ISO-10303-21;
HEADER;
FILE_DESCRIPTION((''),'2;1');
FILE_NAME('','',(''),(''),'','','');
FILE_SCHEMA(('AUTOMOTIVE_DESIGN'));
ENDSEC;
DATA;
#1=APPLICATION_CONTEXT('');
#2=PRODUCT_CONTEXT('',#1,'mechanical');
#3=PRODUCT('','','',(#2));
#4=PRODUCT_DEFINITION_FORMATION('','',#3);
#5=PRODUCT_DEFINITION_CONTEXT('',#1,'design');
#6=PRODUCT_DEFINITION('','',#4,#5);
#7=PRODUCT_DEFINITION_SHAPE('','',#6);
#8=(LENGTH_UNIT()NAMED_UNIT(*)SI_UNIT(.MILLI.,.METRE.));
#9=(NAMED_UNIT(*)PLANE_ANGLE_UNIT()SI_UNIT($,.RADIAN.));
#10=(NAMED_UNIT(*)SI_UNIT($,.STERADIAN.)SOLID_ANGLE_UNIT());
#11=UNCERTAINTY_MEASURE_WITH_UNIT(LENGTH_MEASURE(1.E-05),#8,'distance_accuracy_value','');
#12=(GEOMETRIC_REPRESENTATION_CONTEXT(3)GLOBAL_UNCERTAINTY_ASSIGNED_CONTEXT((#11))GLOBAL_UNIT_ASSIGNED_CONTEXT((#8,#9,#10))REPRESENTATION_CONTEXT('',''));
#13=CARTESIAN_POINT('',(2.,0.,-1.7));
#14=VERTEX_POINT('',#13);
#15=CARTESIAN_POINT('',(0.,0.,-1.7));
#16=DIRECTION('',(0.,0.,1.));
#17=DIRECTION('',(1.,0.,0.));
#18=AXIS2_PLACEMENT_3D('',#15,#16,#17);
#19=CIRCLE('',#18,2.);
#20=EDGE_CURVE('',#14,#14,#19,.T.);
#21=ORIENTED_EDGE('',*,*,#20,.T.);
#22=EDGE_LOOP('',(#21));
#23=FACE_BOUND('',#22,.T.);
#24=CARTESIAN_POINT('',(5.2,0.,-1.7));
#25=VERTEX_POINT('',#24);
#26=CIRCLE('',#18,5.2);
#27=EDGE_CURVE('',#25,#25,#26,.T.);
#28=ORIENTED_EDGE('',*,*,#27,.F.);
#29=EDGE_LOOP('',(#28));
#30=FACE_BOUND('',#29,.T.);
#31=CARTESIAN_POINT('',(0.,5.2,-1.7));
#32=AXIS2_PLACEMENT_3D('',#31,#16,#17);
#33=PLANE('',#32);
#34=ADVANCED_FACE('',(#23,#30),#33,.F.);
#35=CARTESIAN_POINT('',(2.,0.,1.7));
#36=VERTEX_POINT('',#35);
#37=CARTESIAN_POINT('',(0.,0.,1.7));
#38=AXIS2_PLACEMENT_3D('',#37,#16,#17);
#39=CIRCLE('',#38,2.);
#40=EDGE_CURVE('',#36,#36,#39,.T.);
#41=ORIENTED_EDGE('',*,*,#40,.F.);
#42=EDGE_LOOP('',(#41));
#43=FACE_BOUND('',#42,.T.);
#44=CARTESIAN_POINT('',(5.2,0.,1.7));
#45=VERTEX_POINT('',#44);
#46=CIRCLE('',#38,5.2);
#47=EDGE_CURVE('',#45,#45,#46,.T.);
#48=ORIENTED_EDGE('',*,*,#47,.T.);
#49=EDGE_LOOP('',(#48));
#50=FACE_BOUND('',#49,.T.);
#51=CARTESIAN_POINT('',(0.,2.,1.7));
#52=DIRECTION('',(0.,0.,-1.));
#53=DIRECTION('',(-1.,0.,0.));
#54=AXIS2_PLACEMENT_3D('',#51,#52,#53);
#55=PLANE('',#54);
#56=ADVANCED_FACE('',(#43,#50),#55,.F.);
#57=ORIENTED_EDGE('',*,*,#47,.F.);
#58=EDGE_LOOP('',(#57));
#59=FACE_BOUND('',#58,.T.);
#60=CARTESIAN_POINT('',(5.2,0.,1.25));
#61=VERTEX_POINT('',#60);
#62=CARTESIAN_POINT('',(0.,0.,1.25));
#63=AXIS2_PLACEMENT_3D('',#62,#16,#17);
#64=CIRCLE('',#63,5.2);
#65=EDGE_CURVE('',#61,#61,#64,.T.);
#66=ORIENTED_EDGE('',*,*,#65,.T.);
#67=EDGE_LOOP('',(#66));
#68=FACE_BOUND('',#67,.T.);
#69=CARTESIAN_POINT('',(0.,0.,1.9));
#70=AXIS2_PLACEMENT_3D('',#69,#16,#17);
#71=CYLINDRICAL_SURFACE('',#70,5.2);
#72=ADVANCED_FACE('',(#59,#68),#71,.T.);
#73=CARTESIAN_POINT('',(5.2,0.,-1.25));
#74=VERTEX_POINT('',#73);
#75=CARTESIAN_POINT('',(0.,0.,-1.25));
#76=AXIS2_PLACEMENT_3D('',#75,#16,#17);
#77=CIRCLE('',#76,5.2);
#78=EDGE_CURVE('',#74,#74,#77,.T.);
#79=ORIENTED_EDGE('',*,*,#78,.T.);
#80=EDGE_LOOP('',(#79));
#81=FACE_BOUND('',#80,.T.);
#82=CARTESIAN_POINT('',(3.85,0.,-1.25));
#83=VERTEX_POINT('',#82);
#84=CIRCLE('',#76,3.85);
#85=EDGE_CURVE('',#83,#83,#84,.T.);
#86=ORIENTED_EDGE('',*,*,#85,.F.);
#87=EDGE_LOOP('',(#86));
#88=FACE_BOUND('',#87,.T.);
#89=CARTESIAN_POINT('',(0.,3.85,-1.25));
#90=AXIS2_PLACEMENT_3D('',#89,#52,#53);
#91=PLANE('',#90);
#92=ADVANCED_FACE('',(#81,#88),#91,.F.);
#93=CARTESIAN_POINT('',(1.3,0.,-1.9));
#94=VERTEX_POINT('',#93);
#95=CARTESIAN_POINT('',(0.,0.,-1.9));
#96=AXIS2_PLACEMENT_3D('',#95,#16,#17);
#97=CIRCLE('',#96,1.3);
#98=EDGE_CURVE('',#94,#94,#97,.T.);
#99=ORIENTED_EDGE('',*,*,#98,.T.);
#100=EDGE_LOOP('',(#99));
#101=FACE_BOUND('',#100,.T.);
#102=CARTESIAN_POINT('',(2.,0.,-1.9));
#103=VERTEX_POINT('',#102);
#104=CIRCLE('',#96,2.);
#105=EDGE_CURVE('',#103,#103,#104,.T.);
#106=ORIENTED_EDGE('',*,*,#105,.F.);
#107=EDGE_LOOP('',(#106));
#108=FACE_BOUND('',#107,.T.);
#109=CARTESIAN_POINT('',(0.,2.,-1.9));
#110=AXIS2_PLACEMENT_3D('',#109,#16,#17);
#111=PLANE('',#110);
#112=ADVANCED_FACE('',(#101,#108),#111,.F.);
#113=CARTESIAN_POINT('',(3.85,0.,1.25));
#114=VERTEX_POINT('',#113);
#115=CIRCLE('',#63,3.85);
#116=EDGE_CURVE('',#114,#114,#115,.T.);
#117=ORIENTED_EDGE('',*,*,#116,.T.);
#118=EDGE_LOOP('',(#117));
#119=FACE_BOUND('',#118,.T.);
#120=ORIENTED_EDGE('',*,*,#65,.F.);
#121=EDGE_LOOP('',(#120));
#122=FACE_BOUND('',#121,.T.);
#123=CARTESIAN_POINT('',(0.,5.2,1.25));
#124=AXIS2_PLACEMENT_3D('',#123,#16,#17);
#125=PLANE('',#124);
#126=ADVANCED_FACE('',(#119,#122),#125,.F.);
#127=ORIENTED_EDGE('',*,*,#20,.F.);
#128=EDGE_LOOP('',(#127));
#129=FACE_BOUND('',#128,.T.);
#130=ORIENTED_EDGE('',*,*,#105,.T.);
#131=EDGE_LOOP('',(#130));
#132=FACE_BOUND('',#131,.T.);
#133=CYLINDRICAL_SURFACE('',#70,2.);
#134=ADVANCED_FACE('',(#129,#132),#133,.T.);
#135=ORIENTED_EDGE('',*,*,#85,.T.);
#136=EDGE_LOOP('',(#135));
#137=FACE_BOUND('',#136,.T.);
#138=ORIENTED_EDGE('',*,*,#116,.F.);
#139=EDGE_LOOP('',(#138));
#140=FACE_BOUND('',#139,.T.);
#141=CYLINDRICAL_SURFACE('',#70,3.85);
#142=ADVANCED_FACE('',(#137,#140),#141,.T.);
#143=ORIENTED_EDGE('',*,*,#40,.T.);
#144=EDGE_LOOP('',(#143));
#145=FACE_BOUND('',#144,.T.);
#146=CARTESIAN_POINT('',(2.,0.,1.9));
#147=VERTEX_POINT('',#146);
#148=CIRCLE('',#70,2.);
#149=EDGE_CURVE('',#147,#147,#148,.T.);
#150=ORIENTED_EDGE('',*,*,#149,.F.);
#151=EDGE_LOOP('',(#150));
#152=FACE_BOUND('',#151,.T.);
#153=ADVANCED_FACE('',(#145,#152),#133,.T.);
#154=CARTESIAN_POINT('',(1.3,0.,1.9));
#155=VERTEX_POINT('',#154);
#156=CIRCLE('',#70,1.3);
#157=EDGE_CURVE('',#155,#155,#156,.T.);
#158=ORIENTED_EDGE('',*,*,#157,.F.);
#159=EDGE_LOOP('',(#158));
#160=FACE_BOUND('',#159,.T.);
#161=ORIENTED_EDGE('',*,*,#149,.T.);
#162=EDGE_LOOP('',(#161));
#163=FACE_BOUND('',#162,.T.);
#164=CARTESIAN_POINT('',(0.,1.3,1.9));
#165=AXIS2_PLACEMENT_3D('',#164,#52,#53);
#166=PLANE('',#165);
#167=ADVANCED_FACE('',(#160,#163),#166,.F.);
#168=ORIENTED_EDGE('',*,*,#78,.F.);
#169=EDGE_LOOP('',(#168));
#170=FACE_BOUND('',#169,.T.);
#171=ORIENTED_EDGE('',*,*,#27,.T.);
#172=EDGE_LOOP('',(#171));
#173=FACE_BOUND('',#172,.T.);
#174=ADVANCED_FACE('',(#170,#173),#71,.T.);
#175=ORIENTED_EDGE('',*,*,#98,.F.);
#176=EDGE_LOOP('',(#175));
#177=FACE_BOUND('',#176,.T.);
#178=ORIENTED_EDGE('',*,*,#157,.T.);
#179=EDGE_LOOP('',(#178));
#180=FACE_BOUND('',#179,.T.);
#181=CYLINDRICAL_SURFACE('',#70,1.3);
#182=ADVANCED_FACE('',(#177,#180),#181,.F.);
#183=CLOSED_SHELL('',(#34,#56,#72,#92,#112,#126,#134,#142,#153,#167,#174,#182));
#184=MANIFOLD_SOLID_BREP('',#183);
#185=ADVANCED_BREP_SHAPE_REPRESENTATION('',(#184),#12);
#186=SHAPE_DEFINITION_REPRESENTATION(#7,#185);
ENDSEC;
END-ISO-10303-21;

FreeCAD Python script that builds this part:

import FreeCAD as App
import Part
import Sketcher
from FreeCAD import Vector
Q = App.Units.Quantity


def add_polygon(sketch, points):
    """Adds a closed chain of lines whose ends are joined by coincident constraints."""
    first, n = sketch.GeometryCount, len(points)
    for a, b in zip(points, points[1:] + points[:1]):
        sketch.addGeometry(Part.LineSegment(App.Vector(*a, 0), App.Vector(*b, 0)), False)
    for i in range(n):
        sketch.addConstraint(Sketcher.Constraint("Coincident", first + i, 2, first + (i + 1) % n, 1))

doc = App.newDocument("Part")
params = doc.addObject("Spreadsheet::Sheet", "Params")
for row, (alias, value) in enumerate([
    ("sketch1_width", "0.7 mm"),
    ("sketch1_width2", "3.2 mm"),
    ("sketch1_height", "3.8 mm"),
    ("sketch1_height2", "0.2 mm"),
    ("sketch1_height3", "2.5 mm"),
    ("revolution_angle", "360 deg"),
], start=1):
    params.set(f"A{row}", alias)
    params.set(f"B{row}", "=" + value)
    params.setAlias(f"B{row}", alias)

body = doc.addObject("PartDesign::Body", "Body")

# Sketch on YZ plane
sketch1 = body.newObject("Sketcher::SketchObject", "Sketch")
sketch1.AttachmentSupport = (doc.getObject("YZ_Plane"), [""])
sketch1.MapMode = "FlatFace"
add_polygon(sketch1, [(2, 1.9), (1.3, 1.9), (1.3, -1.9), (2, -1.9), (2, -1.7), (5.2, -1.7), (5.2, -1.25), (3.85, -1.25), (3.85, 1.25), (5.2, 1.25), (5.2, 1.7), (2, 1.7)])  # lines 0-11
sketch1.addConstraint([
    Sketcher.Constraint("Horizontal", 0),
    Sketcher.Constraint("Vertical", 1),
    Sketcher.Constraint("Horizontal", 2),
    Sketcher.Constraint("Vertical", 3),
    Sketcher.Constraint("Horizontal", 4),
    Sketcher.Constraint("Vertical", 5),
    Sketcher.Constraint("Horizontal", 6),
    Sketcher.Constraint("Vertical", 7),
    Sketcher.Constraint("Horizontal", 8),
    Sketcher.Constraint("Vertical", 9),
    Sketcher.Constraint("Horizontal", 10),
    Sketcher.Constraint("Vertical", 11),
    Sketcher.Constraint("Symmetric", 5, 2, 8, 2, -1),
    Sketcher.Constraint("Symmetric", 3, 2, 10, 2, -1),
    Sketcher.Constraint("Equal", 3, 11),
    Sketcher.Constraint("DistanceX", 0, 2, 0, 1, Q("0.7 mm")),
    Sketcher.Constraint("DistanceX", 4, 1, 4, 2, Q("3.2 mm")),
    Sketcher.Constraint("DistanceY", 1, 2, 1, 1, Q("3.8 mm")),
    Sketcher.Constraint("DistanceY", 3, 1, 3, 2, Q("0.2 mm")),
    Sketcher.Constraint("DistanceY", 7, 1, 7, 2, Q("2.5 mm")),
    Sketcher.Constraint("DistanceX", -1, 1, 2, 2, Q("2 mm")),
    Sketcher.Constraint("DistanceX", 6, 2, 6, 1, Q("1.35 mm")),
])
sketch1.setExpression("Constraints[27]", "Params.sketch1_width")
sketch1.setExpression("Constraints[28]", "Params.sketch1_width2")
sketch1.setExpression("Constraints[29]", "Params.sketch1_height")
sketch1.setExpression("Constraints[30]", "Params.sketch1_height2")
sketch1.setExpression("Constraints[31]", "Params.sketch1_height3")
revolution = body.newObject("PartDesign::Revolution", "Revolution")
revolution.Profile = sketch1
revolution.ReferenceAxis = (sketch1, ["V_Axis"])
revolution.setExpression("Angle", "Params.revolution_angle")

doc.recompute()
